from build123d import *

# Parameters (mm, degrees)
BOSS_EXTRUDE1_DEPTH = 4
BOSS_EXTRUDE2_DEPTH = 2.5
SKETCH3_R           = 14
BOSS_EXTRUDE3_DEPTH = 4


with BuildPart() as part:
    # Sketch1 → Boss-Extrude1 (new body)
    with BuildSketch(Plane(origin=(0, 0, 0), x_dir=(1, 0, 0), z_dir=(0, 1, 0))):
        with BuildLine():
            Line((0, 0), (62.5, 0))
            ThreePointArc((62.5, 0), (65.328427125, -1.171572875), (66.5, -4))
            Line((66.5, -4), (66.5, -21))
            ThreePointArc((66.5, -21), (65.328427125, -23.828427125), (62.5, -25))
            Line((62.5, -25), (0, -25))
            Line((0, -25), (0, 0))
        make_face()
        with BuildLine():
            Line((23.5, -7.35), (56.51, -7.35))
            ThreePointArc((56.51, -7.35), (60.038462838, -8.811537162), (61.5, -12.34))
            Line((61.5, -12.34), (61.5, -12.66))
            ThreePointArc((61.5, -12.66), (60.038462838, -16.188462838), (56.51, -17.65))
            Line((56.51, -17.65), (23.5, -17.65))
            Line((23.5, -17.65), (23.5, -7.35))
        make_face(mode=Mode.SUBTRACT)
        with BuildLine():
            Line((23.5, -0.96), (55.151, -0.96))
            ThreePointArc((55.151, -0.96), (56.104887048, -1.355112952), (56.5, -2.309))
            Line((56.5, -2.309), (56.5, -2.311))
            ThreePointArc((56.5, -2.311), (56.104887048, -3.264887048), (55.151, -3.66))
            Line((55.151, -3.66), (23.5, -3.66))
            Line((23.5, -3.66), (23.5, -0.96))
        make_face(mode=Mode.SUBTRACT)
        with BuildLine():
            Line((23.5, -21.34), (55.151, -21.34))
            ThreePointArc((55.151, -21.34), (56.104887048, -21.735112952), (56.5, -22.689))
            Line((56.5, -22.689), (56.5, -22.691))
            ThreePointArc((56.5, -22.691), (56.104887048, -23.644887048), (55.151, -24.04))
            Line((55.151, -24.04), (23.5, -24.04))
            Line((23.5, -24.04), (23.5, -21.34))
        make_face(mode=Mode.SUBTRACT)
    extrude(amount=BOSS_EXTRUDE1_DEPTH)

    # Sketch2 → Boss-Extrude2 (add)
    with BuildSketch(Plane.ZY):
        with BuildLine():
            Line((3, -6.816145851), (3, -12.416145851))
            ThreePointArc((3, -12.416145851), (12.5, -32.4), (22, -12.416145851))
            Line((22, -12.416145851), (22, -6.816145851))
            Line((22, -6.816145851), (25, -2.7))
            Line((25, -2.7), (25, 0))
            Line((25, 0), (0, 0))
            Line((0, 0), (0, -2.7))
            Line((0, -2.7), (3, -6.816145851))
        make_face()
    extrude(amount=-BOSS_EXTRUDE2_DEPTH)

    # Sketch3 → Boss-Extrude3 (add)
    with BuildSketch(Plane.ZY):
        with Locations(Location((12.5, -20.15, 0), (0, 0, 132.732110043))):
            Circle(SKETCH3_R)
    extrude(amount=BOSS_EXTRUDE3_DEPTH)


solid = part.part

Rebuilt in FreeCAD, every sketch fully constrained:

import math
import FreeCAD as App
import Part
import Sketcher
from FreeCAD import Vector
Q = App.Units.Quantity

doc = App.newDocument("Part")
body = doc.addObject("PartDesign::Body", "Body")

# Sketch on XZ plane
sketch1 = doc.addObject("Sketcher::SketchObject", "Sketch")
body.addObject(sketch1)
sketch1.AttachmentSupport = (doc.XZ_Plane, [""])
sketch1.MapMode = "FlatFace"
sketch1.addGeometry(Part.LineSegment(Vector(62.5, 0, 0), Vector(0, 0, 0)), False)
sketch1.addGeometry(Part.LineSegment(Vector(0, 0, 0), Vector(0, 25, 0)), False)
sketch1.addGeometry(Part.LineSegment(Vector(0, 25, 0), Vector(62.5, 25, 0)), False)
sketch1.addGeometry(Part.ArcOfCircle(Part.Circle(Vector(62.5, 21, 0), Vector(0, 0, 1), 4), math.radians(0), math.radians(90)), False)
sketch1.addGeometry(Part.LineSegment(Vector(66.5, 21, 0), Vector(66.5, 4, 0)), False)
sketch1.addGeometry(Part.ArcOfCircle(Part.Circle(Vector(62.5, 4, 0), Vector(0, 0, 1), 4), math.radians(-90), math.radians(0)), False)
sketch1.addGeometry(Part.LineSegment(Vector(23.5, 21.34, 0), Vector(55.151, 21.34, 0)), False)
sketch1.addGeometry(Part.ArcOfCircle(Part.Circle(Vector(55.151, 22.689, 0), Vector(0, 0, 1), 1.349), math.radians(-90), math.radians(0)), False)
sketch1.addGeometry(Part.LineSegment(Vector(56.5, 22.689, 0), Vector(56.5, 22.691, 0)), False)
sketch1.addGeometry(Part.ArcOfCircle(Part.Circle(Vector(55.151, 22.691, 0), Vector(0, 0, 1), 1.349), math.radians(0), math.radians(90)), False)
sketch1.addGeometry(Part.LineSegment(Vector(55.151, 24.04, 0), Vector(23.5, 24.04, 0)), False)
sketch1.addGeometry(Part.LineSegment(Vector(23.5, 24.04, 0), Vector(23.5, 21.34, 0)), False)
sketch1.addGeometry(Part.LineSegment(Vector(23.5, 7.35, 0), Vector(56.51, 7.35, 0)), False)
sketch1.addGeometry(Part.ArcOfCircle(Part.Circle(Vector(56.51, 12.34, 0), Vector(0, 0, 1), 4.99), math.radians(-90), math.radians(0)), False)
sketch1.addGeometry(Part.LineSegment(Vector(61.5, 12.34, 0), Vector(61.5, 12.66, 0)), False)
sketch1.addGeometry(Part.ArcOfCircle(Part.Circle(Vector(56.51, 12.66, 0), Vector(0, 0, 1), 4.99), math.radians(0), math.radians(90)), False)
sketch1.addGeometry(Part.LineSegment(Vector(56.51, 17.65, 0), Vector(23.5, 17.65, 0)), False)
sketch1.addGeometry(Part.LineSegment(Vector(23.5, 17.65, 0), Vector(23.5, 7.35, 0)), False)
sketch1.addGeometry(Part.LineSegment(Vector(23.5, 0.96, 0), Vector(55.151, 0.96, 0)), False)
sketch1.addGeometry(Part.ArcOfCircle(Part.Circle(Vector(55.151, 2.309, 0), Vector(0, 0, 1), 1.349), math.radians(-90), math.radians(0)), False)
sketch1.addGeometry(Part.LineSegment(Vector(56.5, 2.309, 0), Vector(56.5, 2.311, 0)), False)
sketch1.addGeometry(Part.ArcOfCircle(Part.Circle(Vector(55.151, 2.311, 0), Vector(0, 0, 1), 1.349), math.radians(0), math.radians(90)), False)
sketch1.addGeometry(Part.LineSegment(Vector(55.151, 3.66, 0), Vector(23.5, 3.66, 0)), False)
sketch1.addGeometry(Part.LineSegment(Vector(23.5, 3.66, 0), Vector(23.5, 0.96, 0)), False)
sketch1.addConstraint(Sketcher.Constraint("Coincident", 0, 2, 1, 1))
sketch1.addConstraint(Sketcher.Constraint("Coincident", 1, 2, 2, 1))
sketch1.addConstraint(Sketcher.Constraint("Tangent", 2, 2, 3, 2))
sketch1.addConstraint(Sketcher.Constraint("Tangent", 3, 1, 4, 1))
sketch1.addConstraint(Sketcher.Constraint("Tangent", 4, 2, 5, 2))
sketch1.addConstraint(Sketcher.Constraint("Tangent", 5, 1, 0, 1))
sketch1.addConstraint(Sketcher.Constraint("Tangent", 6, 2, 7, 1))
sketch1.addConstraint(Sketcher.Constraint("Tangent", 7, 2, 8, 1))
sketch1.addConstraint(Sketcher.Constraint("Coincident", 8, 2, 9, 1))
sketch1.addConstraint(Sketcher.Constraint("Tangent", 9, 2, 10, 1))
sketch1.addConstraint(Sketcher.Constraint("Coincident", 10, 2, 11, 1))
sketch1.addConstraint(Sketcher.Constraint("Coincident", 11, 2, 6, 1))
sketch1.addConstraint(Sketcher.Constraint("Tangent", 12, 2, 13, 1))
sketch1.addConstraint(Sketcher.Constraint("Tangent", 13, 2, 14, 1))
sketch1.addConstraint(Sketcher.Constraint("Tangent", 14, 2, 15, 1))
sketch1.addConstraint(Sketcher.Constraint("Tangent", 15, 2, 16, 1))
sketch1.addConstraint(Sketcher.Constraint("Coincident", 16, 2, 17, 1))
sketch1.addConstraint(Sketcher.Constraint("Coincident", 17, 2, 12, 1))
sketch1.addConstraint(Sketcher.Constraint("Tangent", 18, 2, 19, 1))
sketch1.addConstraint(Sketcher.Constraint("Tangent", 19, 2, 20, 1))
sketch1.addConstraint(Sketcher.Constraint("Coincident", 20, 2, 21, 1))
sketch1.addConstraint(Sketcher.Constraint("Tangent", 21, 2, 22, 1))
sketch1.addConstraint(Sketcher.Constraint("Coincident", 22, 2, 23, 1))
sketch1.addConstraint(Sketcher.Constraint("Coincident", 23, 2, 18, 1))
sketch1.addConstraint(Sketcher.Constraint("Horizontal", 0))
sketch1.addConstraint(Sketcher.Constraint("Vertical", 1))
sketch1.addConstraint(Sketcher.Constraint("Horizontal", 2))
sketch1.addConstraint(Sketcher.Constraint("Vertical", 4))
sketch1.addConstraint(Sketcher.Constraint("Horizontal", 6))
sketch1.addConstraint(Sketcher.Constraint("Horizontal", 10))
sketch1.addConstraint(Sketcher.Constraint("Vertical", 11))
sketch1.addConstraint(Sketcher.Constraint("Horizontal", 12))
sketch1.addConstraint(Sketcher.Constraint("Vertical", 14))
sketch1.addConstraint(Sketcher.Constraint("Horizontal", 16))
sketch1.addConstraint(Sketcher.Constraint("Vertical", 17))
sketch1.addConstraint(Sketcher.Constraint("Horizontal", 18))
sketch1.addConstraint(Sketcher.Constraint("Horizontal", 22))
sketch1.addConstraint(Sketcher.Constraint("Vertical", 23))
sketch1.addConstraint(Sketcher.Constraint("Coincident", 0, 2, -1, 1))
sketch1.addConstraint(Sketcher.Constraint("Equal", 3, 5))
sketch1.addConstraint(Sketcher.Constraint("Equal", 7, 9))
sketch1.addConstraint(Sketcher.Constraint("Equal", 13, 15))
sketch1.addConstraint(Sketcher.Constraint("Equal", 9, 19))
sketch1.addConstraint(Sketcher.Constraint("Equal", 19, 21))
sketch1.addConstraint(Sketcher.Constraint("Horizontal", 9, 3, 8, 2))
sketch1.addConstraint(Sketcher.Constraint("Horizontal", 21, 3, 20, 2))
sketch1.addConstraint(Sketcher.Constraint("Vertical", 9, 3, 19, 3))
sketch1.addConstraint(Sketcher.Constraint("Vertical", 11, 2, 16, 2))
sketch1.addConstraint(Sketcher.Constraint("Vertical", 17, 2, 22, 2))
sketch1.addConstraint(Sketcher.Constraint("Equal", 8, 20))
sketch1.addConstraint(Sketcher.Constraint("Equal", 11, 23))
sketch1.addConstraint(Sketcher.Constraint("Radius", 3, Q("4 mm")))
sketch1.addConstraint(Sketcher.Constraint("DistanceY", 1, 1, 1, 2, Q("25 mm")))
sketch1.addConstraint(Sketcher.Constraint("Radius", 13, Q("4.99 mm")))
sketch1.addConstraint(Sketcher.Constraint("DistanceX", 0, 2, 0, 1, Q("62.5 mm")))
sketch1.addConstraint(Sketcher.Constraint("DistanceY", 11, 2, 11, 1, Q("2.7 mm")))
sketch1.addConstraint(Sketcher.Constraint("DistanceY", 17, 2, 17, 1, Q("10.3 mm")))
sketch1.addConstraint(Sketcher.Constraint("Radius", 7, Q("1.349 mm")))
sketch1.addConstraint(Sketcher.Constraint("DistanceX", 7, 2, 3, 3, Q("6 mm")))
sketch1.addConstraint(Sketcher.Constraint("DistanceX", 13, 2, 5, 3, Q("1 mm")))
sketch1.addConstraint(Sketcher.Constraint("DistanceX", 12, 1, 12, 2, Q("33.01 mm")))
sketch1.addConstraint(Sketcher.Constraint("DistanceY", 8, 1, 8, 2, Q("0.002 mm")))
sketch1.addConstraint(Sketcher.Constraint("DistanceY", -1, 1, 13, 3, Q("12.34 mm")))
sketch1.addConstraint(Sketcher.Constraint("DistanceY", -1, 1, 6, 2, Q("21.34 mm")))
sketch1.addConstraint(Sketcher.Constraint("DistanceY", -1, 1, 18, 2, Q("0.96 mm")))
pad1 = doc.addObject("PartDesign::Pad", "Pad")
body.addObject(pad1)
pad1.Profile = sketch1
pad1.Length = 4
pad1.Reversed = True

# Sketch on YZ plane
sketch2 = doc.addObject("Sketcher::SketchObject", "Sketch001")
body.addObject(sketch2)
sketch2.AttachmentSupport = (doc.YZ_Plane, [""])
sketch2.MapMode = "FlatFace"
sketch2.addGeometry(Part.LineSegment(Vector(-6.816146, 3, 0), Vector(-12.416146, 3, 0)), False)
sketch2.addGeometry(Part.ArcOfCircle(Part.Circle(Vector(-20.15, 12.5, 0), Vector(0, 0, 1), 12.25), math.radians(50.851312), math.radians(309.148688)), False)
sketch2.addGeometry(Part.LineSegment(Vector(-12.416146, 22, 0), Vector(-6.816146, 22, 0)), False)
sketch2.addGeometry(Part.LineSegment(Vector(-6.816146, 22, 0), Vector(-2.7, 25, 0)), False)
sketch2.addGeometry(Part.LineSegment(Vector(-2.7, 25, 0), Vector(0, 25, 0)), False)
sketch2.addGeometry(Part.LineSegment(Vector(0, 25, 0), Vector(0, 0, 0)), False)
sketch2.addGeometry(Part.LineSegment(Vector(0, 0, 0), Vector(-2.7, 0, 0)), False)
sketch2.addGeometry(Part.LineSegment(Vector(-2.7, 0, 0), Vector(-6.816146, 3, 0)), False)
sketch2.addConstraint(Sketcher.Constraint("Coincident", 0, 2, 1, 2))
sketch2.addConstraint(Sketcher.Constraint("Coincident", 1, 1, 2, 1))
sketch2.addConstraint(Sketcher.Constraint("Coincident", 2, 2, 3, 1))
sketch2.addConstraint(Sketcher.Constraint("Coincident", 3, 2, 4, 1))
sketch2.addConstraint(Sketcher.Constraint("Coincident", 4, 2, 5, 1))
sketch2.addConstraint(Sketcher.Constraint("Coincident", 5, 2, 6, 1))
sketch2.addConstraint(Sketcher.Constraint("Coincident", 6, 2, 7, 1))
sketch2.addConstraint(Sketcher.Constraint("Coincident", 7, 2, 0, 1))
sketch2.addConstraint(Sketcher.Constraint("Horizontal", 0))
sketch2.addConstraint(Sketcher.Constraint("Horizontal", 2))
sketch2.addConstraint(Sketcher.Constraint("Horizontal", 4))
sketch2.addConstraint(Sketcher.Constraint("Vertical", 5))
sketch2.addConstraint(Sketcher.Constraint("Horizontal", 6))
sketch2.addConstraint(Sketcher.Constraint("Coincident", 5, 2, -1, 1))
sketch2.addConstraint(Sketcher.Constraint("Vertical", 0, 2, 1, 1))
sketch2.addConstraint(Sketcher.Constraint("Vertical", 3, 2, 6, 2))
sketch2.addConstraint(Sketcher.Constraint("Vertical", 2, 2, 7, 2))
sketch2.addConstraint(Sketcher.Constraint("Equal", 3, 7))
sketch2.addConstraint(Sketcher.Constraint("DistanceY", 5, 2, 5, 1, Q("25 mm")))
sketch2.addConstraint(Sketcher.Constraint("Radius", 1, Q("12.25 mm")))
sketch2.addConstraint(Sketcher.Constraint("DistanceX", 0, 2, 0, 1, Q("5.6 mm")))
sketch2.addConstraint(Sketcher.Constraint("DistanceX", 4, 1, 4, 2, Q("2.7 mm")))
sketch2.addConstraint(Sketcher.Constraint("DistanceY", -1, 1, 0, 2, Q("3 mm")))
sketch2.addConstraint(Sketcher.Constraint("DistanceX", 1, 3, -1, 1, Q("20.15 mm")))
pad2 = doc.addObject("PartDesign::Pad", "Pad001")
body.addObject(pad2)
pad2.Profile = sketch2
pad2.Length = 2.5

# Sketch on YZ plane
sketch3 = doc.addObject("Sketcher::SketchObject", "Sketch002")
body.addObject(sketch3)
sketch3.AttachmentSupport = (doc.YZ_Plane, [""])
sketch3.MapMode = "FlatFace"
sketch3.addGeometry(Part.Circle(Vector(-20.15, 12.5, 0), Vector(0, 0, 1), 14), False)
sketch3.addConstraint(Sketcher.Constraint("Diameter", 0, Q("28 mm")))
sketch3.addConstraint(Sketcher.Constraint("DistanceY", -1, 1, 0, 3, Q("12.5 mm")))
sketch3.addConstraint(Sketcher.Constraint("DistanceX", 0, 3, -1, 1, Q("20.15 mm")))
pad3 = doc.addObject("PartDesign::Pad", "Pad002")
body.addObject(pad3)
pad3.Profile = sketch3
pad3.Length = 4
pad3.Reversed = True

doc.recompute()
